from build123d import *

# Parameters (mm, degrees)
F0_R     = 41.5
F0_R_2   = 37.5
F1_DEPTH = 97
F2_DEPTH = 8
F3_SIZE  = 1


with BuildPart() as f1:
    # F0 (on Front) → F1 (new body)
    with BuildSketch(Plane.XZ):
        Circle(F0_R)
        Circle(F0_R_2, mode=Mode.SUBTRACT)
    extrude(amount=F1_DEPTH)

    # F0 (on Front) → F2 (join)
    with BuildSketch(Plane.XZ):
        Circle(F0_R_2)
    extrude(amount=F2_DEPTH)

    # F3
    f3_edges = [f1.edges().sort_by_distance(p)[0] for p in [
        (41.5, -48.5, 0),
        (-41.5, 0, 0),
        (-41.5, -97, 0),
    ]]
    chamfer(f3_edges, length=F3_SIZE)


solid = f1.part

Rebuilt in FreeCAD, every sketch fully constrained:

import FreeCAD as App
import Part
import Sketcher
Q = App.Units.Quantity


def edges_at(feature, points):
    """Names of the edges that pass closest to the given points."""
    edges = feature.Shape.Edges
    near = lambda p: min(range(len(edges)), key=lambda i: edges[i].distToShape(Part.Vertex(*p))[0])
    return sorted({f"Edge{near(p) + 1}" for p in points})

doc = App.newDocument("Part")
body = doc.addObject("PartDesign::Body", "Body")

# Sketch on XZ plane
sketch1 = body.newObject("Sketcher::SketchObject", "Sketch")
sketch1.AttachmentSupport = (doc.getObject("XZ_Plane"), [""])
sketch1.MapMode = "FlatFace"
sketch1.addGeometry([
    Part.Circle(App.Vector(0, 0, 0), App.Vector(0, 0, 1), 42),
    Part.Circle(App.Vector(0, 0, 0), App.Vector(0, 0, 1), 38),
], False)
sketch1.addConstraint([
    Sketcher.Constraint("Coincident", 0, 3, -1, 1),
    Sketcher.Constraint("Coincident", 1, 3, -1, 1),
    Sketcher.Constraint("Diameter", 0, Q("83 mm")),
    Sketcher.Constraint("Diameter", 1, Q("75 mm")),
])
pad1 = body.newObject("PartDesign::Pad", "Pad")
pad1.Profile = sketch1
pad1.Length = 97

# Sketch on XZ plane
sketch2 = body.newObject("Sketcher::SketchObject", "Sketch001")
sketch2.AttachmentSupport = (doc.getObject("XZ_Plane"), [""])
sketch2.MapMode = "FlatFace"
sketch2.addGeometry(Part.Circle(App.Vector(0, 0, 0), App.Vector(0, 0, 1), 38), False)
sketch2.addConstraint([
    Sketcher.Constraint("Coincident", 0, 3, -1, 1),
    Sketcher.Constraint("Diameter", 0, Q("75 mm")),
])
pad2 = body.newObject("PartDesign::Pad", "Pad001")
pad2.Profile = sketch2
pad2.Length = 8
doc.recompute()

chamfer = body.newObject("PartDesign::Chamfer", "Chamfer")
chamfer.Base = (pad2, edges_at(pad2, [(41.5, -48.5, 0), (-41.5, 0, 0), (-41.5, -97, 0)]))
chamfer.Size = 1

doc.recompute()
